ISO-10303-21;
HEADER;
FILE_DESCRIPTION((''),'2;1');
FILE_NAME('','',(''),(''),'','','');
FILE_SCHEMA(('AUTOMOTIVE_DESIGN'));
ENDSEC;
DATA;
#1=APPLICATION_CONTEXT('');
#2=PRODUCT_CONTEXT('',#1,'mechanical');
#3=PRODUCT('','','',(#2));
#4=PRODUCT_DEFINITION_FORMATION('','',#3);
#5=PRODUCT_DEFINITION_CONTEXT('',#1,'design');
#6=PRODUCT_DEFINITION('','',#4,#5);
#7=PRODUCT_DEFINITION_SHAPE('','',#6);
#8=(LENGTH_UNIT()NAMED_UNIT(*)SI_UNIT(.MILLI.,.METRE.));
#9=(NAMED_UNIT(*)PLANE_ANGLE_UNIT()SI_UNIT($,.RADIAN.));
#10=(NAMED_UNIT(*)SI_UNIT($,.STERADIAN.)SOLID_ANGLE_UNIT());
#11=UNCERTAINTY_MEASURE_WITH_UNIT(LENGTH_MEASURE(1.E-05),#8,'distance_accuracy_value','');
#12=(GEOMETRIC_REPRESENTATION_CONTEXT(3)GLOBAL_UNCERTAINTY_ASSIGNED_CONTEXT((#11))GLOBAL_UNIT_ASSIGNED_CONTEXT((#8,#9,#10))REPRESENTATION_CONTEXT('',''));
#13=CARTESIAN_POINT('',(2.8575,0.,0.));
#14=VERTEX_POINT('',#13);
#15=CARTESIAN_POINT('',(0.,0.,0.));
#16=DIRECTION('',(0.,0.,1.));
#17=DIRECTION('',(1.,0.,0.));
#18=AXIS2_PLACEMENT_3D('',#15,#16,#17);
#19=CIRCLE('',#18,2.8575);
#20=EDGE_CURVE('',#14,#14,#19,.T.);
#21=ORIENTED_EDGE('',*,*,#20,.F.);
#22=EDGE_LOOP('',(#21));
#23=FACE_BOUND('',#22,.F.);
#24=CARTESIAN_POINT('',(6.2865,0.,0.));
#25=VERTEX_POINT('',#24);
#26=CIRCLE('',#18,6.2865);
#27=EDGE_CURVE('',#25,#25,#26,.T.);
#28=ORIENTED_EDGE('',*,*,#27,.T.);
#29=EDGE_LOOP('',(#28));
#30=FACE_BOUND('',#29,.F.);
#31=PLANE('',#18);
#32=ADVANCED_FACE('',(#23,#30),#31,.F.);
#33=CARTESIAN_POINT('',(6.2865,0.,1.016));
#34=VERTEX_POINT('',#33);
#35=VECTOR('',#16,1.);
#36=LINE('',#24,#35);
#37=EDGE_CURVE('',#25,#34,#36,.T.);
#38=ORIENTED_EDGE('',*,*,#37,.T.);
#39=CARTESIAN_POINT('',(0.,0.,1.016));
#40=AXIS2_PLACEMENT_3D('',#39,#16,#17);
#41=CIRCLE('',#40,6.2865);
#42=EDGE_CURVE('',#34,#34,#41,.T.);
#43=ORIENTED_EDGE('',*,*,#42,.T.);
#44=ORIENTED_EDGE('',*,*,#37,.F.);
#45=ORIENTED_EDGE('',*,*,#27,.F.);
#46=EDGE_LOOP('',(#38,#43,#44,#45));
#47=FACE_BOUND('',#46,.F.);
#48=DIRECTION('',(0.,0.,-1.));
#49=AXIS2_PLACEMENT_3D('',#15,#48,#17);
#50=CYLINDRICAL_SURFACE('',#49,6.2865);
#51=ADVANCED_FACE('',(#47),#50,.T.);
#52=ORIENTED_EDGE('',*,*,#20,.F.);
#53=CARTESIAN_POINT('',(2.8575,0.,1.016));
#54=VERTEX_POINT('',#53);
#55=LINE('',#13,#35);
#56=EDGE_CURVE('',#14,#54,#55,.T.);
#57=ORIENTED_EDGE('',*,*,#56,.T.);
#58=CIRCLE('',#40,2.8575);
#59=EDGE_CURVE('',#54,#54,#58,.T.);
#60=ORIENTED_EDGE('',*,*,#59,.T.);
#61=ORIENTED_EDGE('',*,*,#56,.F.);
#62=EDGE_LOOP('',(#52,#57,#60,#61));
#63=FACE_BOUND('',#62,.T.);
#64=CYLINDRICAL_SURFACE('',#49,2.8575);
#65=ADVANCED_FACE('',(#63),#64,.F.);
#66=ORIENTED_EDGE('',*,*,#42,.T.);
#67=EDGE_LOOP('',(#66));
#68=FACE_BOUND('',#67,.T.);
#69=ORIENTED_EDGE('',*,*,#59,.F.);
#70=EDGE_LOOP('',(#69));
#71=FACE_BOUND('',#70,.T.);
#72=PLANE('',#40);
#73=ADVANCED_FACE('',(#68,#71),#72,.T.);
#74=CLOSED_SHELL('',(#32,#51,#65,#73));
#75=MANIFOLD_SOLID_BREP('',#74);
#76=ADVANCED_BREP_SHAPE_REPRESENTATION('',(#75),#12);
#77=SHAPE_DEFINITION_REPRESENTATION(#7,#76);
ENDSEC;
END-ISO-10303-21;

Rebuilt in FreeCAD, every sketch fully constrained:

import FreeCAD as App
import Part
import Sketcher
from FreeCAD import Vector
Q = App.Units.Quantity

doc = App.newDocument("Part")
body = doc.addObject("PartDesign::Body", "Body")

# Sketch on XY plane
sketch1 = body.newObject("Sketcher::SketchObject", "Sketch")
sketch1.AttachmentSupport = (doc.getObject("XY_Plane"), [""])
sketch1.MapMode = "FlatFace"
sketch1.addGeometry(Part.Circle(Vector(0, 0, 0), Vector(0, 0, 1), 6.3), False)
sketch1.addGeometry(Part.Circle(Vector(0, 0, 0), Vector(0, 0, 1), 2.9), False)
sketch1.addConstraint(Sketcher.Constraint("Coincident", 0, 3, -1, 1))
sketch1.addConstraint(Sketcher.Constraint("Coincident", 1, 3, -1, 1))
sketch1.addConstraint(Sketcher.Constraint("Diameter", 1, Q("0.225 in")))
sketch1.addConstraint(Sketcher.Constraint("Diameter", 0, Q("0.495 in")))
pad1 = body.newObject("PartDesign::Pad", "Pad")
pad1.Profile = sketch1
pad1.Length = Q("0.04 in")

doc.recompute()
